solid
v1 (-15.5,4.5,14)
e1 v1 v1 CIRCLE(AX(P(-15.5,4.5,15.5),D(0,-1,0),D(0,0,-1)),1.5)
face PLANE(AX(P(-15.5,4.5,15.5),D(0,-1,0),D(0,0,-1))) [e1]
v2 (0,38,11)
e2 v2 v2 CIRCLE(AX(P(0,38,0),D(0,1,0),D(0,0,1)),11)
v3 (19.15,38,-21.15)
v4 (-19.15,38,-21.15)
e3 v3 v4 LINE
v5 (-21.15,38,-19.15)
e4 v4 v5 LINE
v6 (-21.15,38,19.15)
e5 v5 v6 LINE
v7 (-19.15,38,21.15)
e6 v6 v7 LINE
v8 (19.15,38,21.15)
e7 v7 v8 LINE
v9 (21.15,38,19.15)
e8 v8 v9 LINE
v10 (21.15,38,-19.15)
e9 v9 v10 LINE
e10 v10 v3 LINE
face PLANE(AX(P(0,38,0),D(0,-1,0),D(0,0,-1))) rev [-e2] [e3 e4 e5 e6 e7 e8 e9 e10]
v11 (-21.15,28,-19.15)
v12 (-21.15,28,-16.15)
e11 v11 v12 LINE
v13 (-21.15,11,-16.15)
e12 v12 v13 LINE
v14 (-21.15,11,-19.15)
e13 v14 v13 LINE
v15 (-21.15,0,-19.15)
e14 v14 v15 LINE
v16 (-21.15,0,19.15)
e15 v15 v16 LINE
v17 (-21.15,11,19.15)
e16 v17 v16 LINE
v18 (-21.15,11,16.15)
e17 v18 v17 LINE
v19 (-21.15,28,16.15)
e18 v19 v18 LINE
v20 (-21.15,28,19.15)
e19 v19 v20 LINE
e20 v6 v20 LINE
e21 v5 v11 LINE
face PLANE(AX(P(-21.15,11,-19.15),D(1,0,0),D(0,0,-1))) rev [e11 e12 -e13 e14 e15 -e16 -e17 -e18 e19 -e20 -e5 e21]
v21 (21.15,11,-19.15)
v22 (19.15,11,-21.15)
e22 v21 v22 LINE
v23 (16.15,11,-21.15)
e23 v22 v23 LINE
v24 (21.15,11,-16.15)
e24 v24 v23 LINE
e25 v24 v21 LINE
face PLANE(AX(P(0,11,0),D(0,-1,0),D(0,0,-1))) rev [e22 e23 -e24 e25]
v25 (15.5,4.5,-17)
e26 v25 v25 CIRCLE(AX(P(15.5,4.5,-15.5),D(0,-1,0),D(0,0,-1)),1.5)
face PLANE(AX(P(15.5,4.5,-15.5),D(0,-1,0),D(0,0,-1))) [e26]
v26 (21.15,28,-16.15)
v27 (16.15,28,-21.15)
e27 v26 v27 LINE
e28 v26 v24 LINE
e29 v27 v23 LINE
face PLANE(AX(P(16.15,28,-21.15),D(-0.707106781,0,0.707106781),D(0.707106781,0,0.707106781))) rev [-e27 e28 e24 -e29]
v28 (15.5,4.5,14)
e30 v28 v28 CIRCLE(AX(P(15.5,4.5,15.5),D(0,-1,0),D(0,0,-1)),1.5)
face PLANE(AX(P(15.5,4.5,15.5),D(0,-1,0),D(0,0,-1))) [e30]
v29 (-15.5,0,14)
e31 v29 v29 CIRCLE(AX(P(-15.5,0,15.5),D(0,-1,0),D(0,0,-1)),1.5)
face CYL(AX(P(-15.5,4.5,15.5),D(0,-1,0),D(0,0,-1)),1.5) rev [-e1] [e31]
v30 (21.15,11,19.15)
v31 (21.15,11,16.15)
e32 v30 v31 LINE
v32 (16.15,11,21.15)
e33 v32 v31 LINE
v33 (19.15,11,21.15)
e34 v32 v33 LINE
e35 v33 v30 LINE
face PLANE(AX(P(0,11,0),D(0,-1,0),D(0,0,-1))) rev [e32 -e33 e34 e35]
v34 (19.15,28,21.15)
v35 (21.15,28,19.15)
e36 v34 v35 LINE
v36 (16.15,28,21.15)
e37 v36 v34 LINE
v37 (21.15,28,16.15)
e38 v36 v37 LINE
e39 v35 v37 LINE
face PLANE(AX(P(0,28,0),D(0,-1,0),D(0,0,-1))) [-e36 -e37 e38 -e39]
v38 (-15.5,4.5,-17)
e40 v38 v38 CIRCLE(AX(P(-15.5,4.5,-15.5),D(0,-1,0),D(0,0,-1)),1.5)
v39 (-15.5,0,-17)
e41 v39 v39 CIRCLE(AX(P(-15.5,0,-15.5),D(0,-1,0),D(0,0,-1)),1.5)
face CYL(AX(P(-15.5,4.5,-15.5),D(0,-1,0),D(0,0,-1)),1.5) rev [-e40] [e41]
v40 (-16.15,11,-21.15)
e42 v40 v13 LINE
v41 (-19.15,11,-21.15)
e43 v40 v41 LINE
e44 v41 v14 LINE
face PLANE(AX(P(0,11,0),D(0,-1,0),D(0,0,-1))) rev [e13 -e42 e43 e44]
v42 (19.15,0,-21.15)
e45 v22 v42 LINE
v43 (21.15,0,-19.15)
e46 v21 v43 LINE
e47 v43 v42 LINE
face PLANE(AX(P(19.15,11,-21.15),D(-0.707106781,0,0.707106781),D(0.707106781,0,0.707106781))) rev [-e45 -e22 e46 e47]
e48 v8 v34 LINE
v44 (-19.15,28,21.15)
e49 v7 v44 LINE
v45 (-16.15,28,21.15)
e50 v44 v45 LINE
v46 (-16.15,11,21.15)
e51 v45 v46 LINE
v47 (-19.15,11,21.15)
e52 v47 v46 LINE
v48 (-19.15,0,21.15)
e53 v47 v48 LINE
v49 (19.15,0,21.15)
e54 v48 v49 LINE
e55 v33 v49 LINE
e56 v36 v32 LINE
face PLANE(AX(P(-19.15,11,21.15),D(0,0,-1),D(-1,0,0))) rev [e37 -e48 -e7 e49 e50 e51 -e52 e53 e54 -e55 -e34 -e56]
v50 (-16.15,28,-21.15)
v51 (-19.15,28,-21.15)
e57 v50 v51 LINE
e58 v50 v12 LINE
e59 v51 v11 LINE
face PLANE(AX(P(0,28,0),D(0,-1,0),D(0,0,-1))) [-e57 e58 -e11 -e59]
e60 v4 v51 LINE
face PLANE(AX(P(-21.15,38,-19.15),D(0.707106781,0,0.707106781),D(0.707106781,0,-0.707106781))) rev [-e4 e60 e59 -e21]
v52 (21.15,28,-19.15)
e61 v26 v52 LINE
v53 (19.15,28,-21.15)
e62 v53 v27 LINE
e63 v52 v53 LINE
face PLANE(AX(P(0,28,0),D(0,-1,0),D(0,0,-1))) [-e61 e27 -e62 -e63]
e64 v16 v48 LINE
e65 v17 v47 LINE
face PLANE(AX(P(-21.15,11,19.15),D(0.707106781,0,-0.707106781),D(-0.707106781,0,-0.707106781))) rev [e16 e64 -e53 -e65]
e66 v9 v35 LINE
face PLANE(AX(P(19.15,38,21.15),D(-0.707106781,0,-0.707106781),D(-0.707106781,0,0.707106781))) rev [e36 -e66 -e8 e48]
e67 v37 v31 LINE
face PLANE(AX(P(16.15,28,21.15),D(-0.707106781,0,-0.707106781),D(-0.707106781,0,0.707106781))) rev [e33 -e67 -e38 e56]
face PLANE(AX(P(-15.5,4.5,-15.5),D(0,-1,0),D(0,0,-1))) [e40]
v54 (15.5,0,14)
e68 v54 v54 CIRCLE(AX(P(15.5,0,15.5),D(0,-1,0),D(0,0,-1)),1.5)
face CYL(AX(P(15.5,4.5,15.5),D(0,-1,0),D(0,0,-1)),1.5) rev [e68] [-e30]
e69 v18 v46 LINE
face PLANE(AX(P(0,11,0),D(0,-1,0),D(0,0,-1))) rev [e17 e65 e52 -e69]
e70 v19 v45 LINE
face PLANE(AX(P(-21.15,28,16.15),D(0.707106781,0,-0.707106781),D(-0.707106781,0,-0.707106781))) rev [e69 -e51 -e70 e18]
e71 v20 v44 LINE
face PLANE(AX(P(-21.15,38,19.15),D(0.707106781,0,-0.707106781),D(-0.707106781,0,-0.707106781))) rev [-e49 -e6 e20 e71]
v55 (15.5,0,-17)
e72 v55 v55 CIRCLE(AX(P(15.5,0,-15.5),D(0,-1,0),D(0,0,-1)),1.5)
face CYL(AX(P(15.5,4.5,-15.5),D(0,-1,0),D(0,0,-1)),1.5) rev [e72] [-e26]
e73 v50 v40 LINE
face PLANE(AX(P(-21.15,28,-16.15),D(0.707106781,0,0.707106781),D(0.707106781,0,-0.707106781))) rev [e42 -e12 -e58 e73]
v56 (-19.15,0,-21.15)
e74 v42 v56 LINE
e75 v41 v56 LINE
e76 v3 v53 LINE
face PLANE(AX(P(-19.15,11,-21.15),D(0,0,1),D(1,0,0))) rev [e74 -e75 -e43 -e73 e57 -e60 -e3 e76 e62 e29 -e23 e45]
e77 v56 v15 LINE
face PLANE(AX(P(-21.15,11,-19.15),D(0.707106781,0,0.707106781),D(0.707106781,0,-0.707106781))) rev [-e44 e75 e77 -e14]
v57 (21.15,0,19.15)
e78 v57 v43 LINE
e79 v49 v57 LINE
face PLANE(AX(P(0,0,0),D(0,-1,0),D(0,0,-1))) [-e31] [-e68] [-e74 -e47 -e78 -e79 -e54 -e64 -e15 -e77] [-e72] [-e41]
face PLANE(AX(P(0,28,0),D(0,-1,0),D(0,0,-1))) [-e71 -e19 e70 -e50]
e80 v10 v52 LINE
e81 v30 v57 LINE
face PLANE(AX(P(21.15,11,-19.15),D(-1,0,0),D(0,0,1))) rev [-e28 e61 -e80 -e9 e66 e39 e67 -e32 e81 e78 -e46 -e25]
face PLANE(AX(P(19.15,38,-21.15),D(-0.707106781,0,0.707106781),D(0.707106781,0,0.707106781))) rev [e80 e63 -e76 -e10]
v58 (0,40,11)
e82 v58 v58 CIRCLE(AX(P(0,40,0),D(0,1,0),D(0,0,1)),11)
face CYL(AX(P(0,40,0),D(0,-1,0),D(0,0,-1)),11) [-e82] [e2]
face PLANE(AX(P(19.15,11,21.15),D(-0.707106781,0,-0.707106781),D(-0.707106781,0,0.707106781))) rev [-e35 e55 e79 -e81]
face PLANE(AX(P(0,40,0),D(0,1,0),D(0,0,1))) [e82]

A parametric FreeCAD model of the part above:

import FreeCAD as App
import Part
import Sketcher

V = App.Vector
Q = App.Units.Quantity

doc = App.newDocument("Part")
body = doc.addObject("PartDesign::Body", "Body")

sketch1 = doc.addObject("Sketcher::SketchObject", "Sketch")
body.addObject(sketch1)
sketch1.AttachmentSupport = (doc.XZ_Plane, [""])
sketch1.MapMode = "FlatFace"
sketch1.addGeometry([
    Part.LineSegment(V(19.1, 21.1, 0), V(21.1, 19.1, 0)),
    Part.LineSegment(V(21.1, 19.1, 0), V(21.1, -19.1, 0)),
    Part.LineSegment(V(21.1, -19.1, 0), V(19.1, -21.1, 0)),
    Part.LineSegment(V(19.1, -21.1, 0), V(-19.1, -21.1, 0)),
    Part.LineSegment(V(-19.1, -21.1, 0), V(-21.1, -19.1, 0)),
    Part.LineSegment(V(-21.1, -19.1, 0), V(-21.1, 19.1, 0)),
    Part.LineSegment(V(-21.1, 19.1, 0), V(-19.1, 21.1, 0)),
    Part.LineSegment(V(-19.1, 21.1, 0), V(19.1, 21.1, 0)),
], False)
sketch1.addConstraint([
    Sketcher.Constraint("Coincident", 0, 2, 1, 1),
    Sketcher.Constraint("Coincident", 1, 2, 2, 1),
    Sketcher.Constraint("Coincident", 2, 2, 3, 1),
    Sketcher.Constraint("Coincident", 3, 2, 4, 1),
    Sketcher.Constraint("Coincident", 4, 2, 5, 1),
    Sketcher.Constraint("Coincident", 5, 2, 6, 1),
    Sketcher.Constraint("Coincident", 6, 2, 7, 1),
    Sketcher.Constraint("Coincident", 7, 2, 0, 1),
    Sketcher.Constraint("Vertical", 1),
    Sketcher.Constraint("Horizontal", 3),
    Sketcher.Constraint("Vertical", 5),
    Sketcher.Constraint("Horizontal", 7),
    Sketcher.Constraint("Symmetric", 0, 2, 4, 2, -1, 1),
    Sketcher.Constraint("Symmetric", 2, 2, 6, 2, -1, 1),
    Sketcher.Constraint("Perpendicular", 0, 2),
    Sketcher.Constraint("Perpendicular", 2, 4),
    Sketcher.Constraint("Perpendicular", 4, 6),
    Sketcher.Constraint("Horizontal", 1, 2, 4, 2),
    Sketcher.Constraint("Vertical", 3, 2, 6, 2),
    Sketcher.Constraint("Equal", 7, 1),
    Sketcher.Constraint("DistanceX", 3, 2, 3, 1, Q("38.3 mm")),
    Sketcher.Constraint("DistanceX", 2, 2, 1, 2, Q("2 mm")),
])
pad1 = doc.addObject("PartDesign::Pad", "Pad")
body.addObject(pad1)
pad1.Profile = sketch1
pad1.Length = 11
pad1.Reversed = True

sketch2 = doc.addObject("Sketcher::SketchObject", "Sketch001")
body.addObject(sketch2)
sketch2.AttachmentSupport = (doc.XZ_Plane, [""])
sketch2.MapMode = "FlatFace"
sketch2.AttachmentOffset = App.Placement(V(0, 0, -11), App.Rotation())
sketch2.addGeometry([
    Part.LineSegment(V(16, 21, 0), V(21, 16, 0)),
    Part.LineSegment(V(21, 16, 0), V(21, -16, 0)),
    Part.LineSegment(V(21, -16, 0), V(16, -21, 0)),
    Part.LineSegment(V(16, -21, 0), V(-16, -21, 0)),
    Part.LineSegment(V(-16, -21, 0), V(-21, -16, 0)),
    Part.LineSegment(V(-21, -16, 0), V(-21, 16, 0)),
    Part.LineSegment(V(-21, 16, 0), V(-16, 21, 0)),
    Part.LineSegment(V(-16, 21, 0), V(16, 21, 0)),
], False)
sketch2.addConstraint([
    Sketcher.Constraint("Coincident", 0, 2, 1, 1),
    Sketcher.Constraint("Coincident", 1, 2, 2, 1),
    Sketcher.Constraint("Coincident", 2, 2, 3, 1),
    Sketcher.Constraint("Coincident", 3, 2, 4, 1),
    Sketcher.Constraint("Coincident", 4, 2, 5, 1),
    Sketcher.Constraint("Coincident", 5, 2, 6, 1),
    Sketcher.Constraint("Coincident", 6, 2, 7, 1),
    Sketcher.Constraint("Coincident", 7, 2, 0, 1),
    Sketcher.Constraint("Vertical", 1),
    Sketcher.Constraint("Horizontal", 3),
    Sketcher.Constraint("Vertical", 5),
    Sketcher.Constraint("Horizontal", 7),
    Sketcher.Constraint("Symmetric", 0, 2, 4, 2, -1, 1),
    Sketcher.Constraint("Symmetric", 2, 2, 6, 2, -1, 1),
    Sketcher.Constraint("Perpendicular", 0, 2),
    Sketcher.Constraint("Perpendicular", 2, 4),
    Sketcher.Constraint("Perpendicular", 4, 6),
    Sketcher.Constraint("Horizontal", 1, 2, 4, 2),
    Sketcher.Constraint("Vertical", 3, 2, 6, 2),
    Sketcher.Constraint("Equal", 7, 1),
    Sketcher.Constraint("DistanceX", 3, 2, 3, 1, Q("32.3 mm")),
    Sketcher.Constraint("DistanceX", 2, 2, 1, 2, Q("5 mm")),
])
pad2 = doc.addObject("PartDesign::Pad", "Pad001")
body.addObject(pad2)
pad2.Profile = sketch2
pad2.Length = 17
pad2.Reversed = True

sketch3 = doc.addObject("Sketcher::SketchObject", "Sketch002")
body.addObject(sketch3)
sketch3.AttachmentSupport = (doc.XZ_Plane, [""])
sketch3.MapMode = "FlatFace"
sketch3.AttachmentOffset = App.Placement(V(0, 0, -28), App.Rotation())
sketch3.addGeometry([
    Part.LineSegment(V(19.1, 21.1, 0), V(21.1, 19.1, 0)),
    Part.LineSegment(V(21.1, 19.1, 0), V(21.1, -19.1, 0)),
    Part.LineSegment(V(21.1, -19.1, 0), V(19.1, -21.1, 0)),
    Part.LineSegment(V(19.1, -21.1, 0), V(-19.1, -21.1, 0)),
    Part.LineSegment(V(-19.1, -21.1, 0), V(-21.1, -19.1, 0)),
    Part.LineSegment(V(-21.1, -19.1, 0), V(-21.1, 19.1, 0)),
    Part.LineSegment(V(-21.1, 19.1, 0), V(-19.1, 21.1, 0)),
    Part.LineSegment(V(-19.1, 21.1, 0), V(19.1, 21.1, 0)),
], False)
sketch3.addConstraint([
    Sketcher.Constraint("Coincident", 0, 2, 1, 1),
    Sketcher.Constraint("Coincident", 1, 2, 2, 1),
    Sketcher.Constraint("Coincident", 2, 2, 3, 1),
    Sketcher.Constraint("Coincident", 3, 2, 4, 1),
    Sketcher.Constraint("Coincident", 4, 2, 5, 1),
    Sketcher.Constraint("Coincident", 5, 2, 6, 1),
    Sketcher.Constraint("Coincident", 6, 2, 7, 1),
    Sketcher.Constraint("Coincident", 7, 2, 0, 1),
    Sketcher.Constraint("Vertical", 1),
    Sketcher.Constraint("Horizontal", 3),
    Sketcher.Constraint("Vertical", 5),
    Sketcher.Constraint("Horizontal", 7),
    Sketcher.Constraint("Symmetric", 0, 2, 4, 2, -1, 1),
    Sketcher.Constraint("Symmetric", 2, 2, 6, 2, -1, 1),
    Sketcher.Constraint("Perpendicular", 0, 2),
    Sketcher.Constraint("Perpendicular", 2, 4),
    Sketcher.Constraint("Perpendicular", 4, 6),
    Sketcher.Constraint("Horizontal", 1, 2, 4, 2),
    Sketcher.Constraint("Vertical", 3, 2, 6, 2),
    Sketcher.Constraint("Equal", 7, 1),
    Sketcher.Constraint("DistanceX", 3, 2, 3, 1, Q("38.3 mm")),
    Sketcher.Constraint("DistanceX", 2, 2, 1, 2, Q("2 mm")),
])
pad3 = doc.addObject("PartDesign::Pad", "Pad002")
body.addObject(pad3)
pad3.Profile = sketch3
pad3.Length = 10
pad3.Reversed = True

sketch4 = doc.addObject("Sketcher::SketchObject", "Sketch003")
body.addObject(sketch4)
sketch4.AttachmentSupport = (doc.XZ_Plane, [""])
sketch4.MapMode = "FlatFace"
sketch4.AttachmentOffset = App.Placement(V(0, 0, -38), App.Rotation())
sketch4.addGeometry(Part.Circle(V(0, 0, 0), V(0, 0, 1), 11), False)
sketch4.addConstraint([
    Sketcher.Constraint("Coincident", 0, 3, -1, 1),
    Sketcher.Constraint("Diameter", 0, Q("22 mm")),
])
pad4 = doc.addObject("PartDesign::Pad", "Pad003")
body.addObject(pad4)
pad4.Profile = sketch4
pad4.Length = 2
pad4.Reversed = True

sketch5 = doc.addObject("Sketcher::SketchObject", "Sketch004")
body.addObject(sketch5)
sketch5.AttachmentSupport = (doc.XZ_Plane, [""])
sketch5.MapMode = "FlatFace"
sketch5.addGeometry([
    Part.Circle(V(-15.5, 15.5, 0), V(0, 0, 1), 1.5),
    Part.Circle(V(15.5, 15.5, 0), V(0, 0, 1), 1.5),
    Part.Circle(V(15.5, -15.5, 0), V(0, 0, 1), 1.5),
    Part.Circle(V(-15.5, -15.5, 0), V(0, 0, 1), 1.5),
], False)
sketch5.addConstraint([
    Sketcher.Constraint("Equal", 0, 1),
    Sketcher.Constraint("Equal", 1, 2),
    Sketcher.Constraint("Equal", 2, 3),
    Sketcher.Constraint("Symmetric", 0, 3, 2, 3, -1, 1),
    Sketcher.Constraint("Symmetric", 1, 3, 3, 3, -1, 1),
    Sketcher.Constraint("Symmetric", 0, 3, 1, 3, -2),
    Sketcher.Constraint("Diameter", 0, Q("3 mm")),
    Sketcher.Constraint("DistanceX", 0, 3, 1, 3, Q("31 mm")),
    Sketcher.Constraint("DistanceY", 2, 3, 1, 3, Q("31 mm")),
])
pocket1 = doc.addObject("PartDesign::Pocket", "Pocket")
body.addObject(pocket1)
pocket1.Profile = sketch5
pocket1.Length = 4.5

doc.recompute()
